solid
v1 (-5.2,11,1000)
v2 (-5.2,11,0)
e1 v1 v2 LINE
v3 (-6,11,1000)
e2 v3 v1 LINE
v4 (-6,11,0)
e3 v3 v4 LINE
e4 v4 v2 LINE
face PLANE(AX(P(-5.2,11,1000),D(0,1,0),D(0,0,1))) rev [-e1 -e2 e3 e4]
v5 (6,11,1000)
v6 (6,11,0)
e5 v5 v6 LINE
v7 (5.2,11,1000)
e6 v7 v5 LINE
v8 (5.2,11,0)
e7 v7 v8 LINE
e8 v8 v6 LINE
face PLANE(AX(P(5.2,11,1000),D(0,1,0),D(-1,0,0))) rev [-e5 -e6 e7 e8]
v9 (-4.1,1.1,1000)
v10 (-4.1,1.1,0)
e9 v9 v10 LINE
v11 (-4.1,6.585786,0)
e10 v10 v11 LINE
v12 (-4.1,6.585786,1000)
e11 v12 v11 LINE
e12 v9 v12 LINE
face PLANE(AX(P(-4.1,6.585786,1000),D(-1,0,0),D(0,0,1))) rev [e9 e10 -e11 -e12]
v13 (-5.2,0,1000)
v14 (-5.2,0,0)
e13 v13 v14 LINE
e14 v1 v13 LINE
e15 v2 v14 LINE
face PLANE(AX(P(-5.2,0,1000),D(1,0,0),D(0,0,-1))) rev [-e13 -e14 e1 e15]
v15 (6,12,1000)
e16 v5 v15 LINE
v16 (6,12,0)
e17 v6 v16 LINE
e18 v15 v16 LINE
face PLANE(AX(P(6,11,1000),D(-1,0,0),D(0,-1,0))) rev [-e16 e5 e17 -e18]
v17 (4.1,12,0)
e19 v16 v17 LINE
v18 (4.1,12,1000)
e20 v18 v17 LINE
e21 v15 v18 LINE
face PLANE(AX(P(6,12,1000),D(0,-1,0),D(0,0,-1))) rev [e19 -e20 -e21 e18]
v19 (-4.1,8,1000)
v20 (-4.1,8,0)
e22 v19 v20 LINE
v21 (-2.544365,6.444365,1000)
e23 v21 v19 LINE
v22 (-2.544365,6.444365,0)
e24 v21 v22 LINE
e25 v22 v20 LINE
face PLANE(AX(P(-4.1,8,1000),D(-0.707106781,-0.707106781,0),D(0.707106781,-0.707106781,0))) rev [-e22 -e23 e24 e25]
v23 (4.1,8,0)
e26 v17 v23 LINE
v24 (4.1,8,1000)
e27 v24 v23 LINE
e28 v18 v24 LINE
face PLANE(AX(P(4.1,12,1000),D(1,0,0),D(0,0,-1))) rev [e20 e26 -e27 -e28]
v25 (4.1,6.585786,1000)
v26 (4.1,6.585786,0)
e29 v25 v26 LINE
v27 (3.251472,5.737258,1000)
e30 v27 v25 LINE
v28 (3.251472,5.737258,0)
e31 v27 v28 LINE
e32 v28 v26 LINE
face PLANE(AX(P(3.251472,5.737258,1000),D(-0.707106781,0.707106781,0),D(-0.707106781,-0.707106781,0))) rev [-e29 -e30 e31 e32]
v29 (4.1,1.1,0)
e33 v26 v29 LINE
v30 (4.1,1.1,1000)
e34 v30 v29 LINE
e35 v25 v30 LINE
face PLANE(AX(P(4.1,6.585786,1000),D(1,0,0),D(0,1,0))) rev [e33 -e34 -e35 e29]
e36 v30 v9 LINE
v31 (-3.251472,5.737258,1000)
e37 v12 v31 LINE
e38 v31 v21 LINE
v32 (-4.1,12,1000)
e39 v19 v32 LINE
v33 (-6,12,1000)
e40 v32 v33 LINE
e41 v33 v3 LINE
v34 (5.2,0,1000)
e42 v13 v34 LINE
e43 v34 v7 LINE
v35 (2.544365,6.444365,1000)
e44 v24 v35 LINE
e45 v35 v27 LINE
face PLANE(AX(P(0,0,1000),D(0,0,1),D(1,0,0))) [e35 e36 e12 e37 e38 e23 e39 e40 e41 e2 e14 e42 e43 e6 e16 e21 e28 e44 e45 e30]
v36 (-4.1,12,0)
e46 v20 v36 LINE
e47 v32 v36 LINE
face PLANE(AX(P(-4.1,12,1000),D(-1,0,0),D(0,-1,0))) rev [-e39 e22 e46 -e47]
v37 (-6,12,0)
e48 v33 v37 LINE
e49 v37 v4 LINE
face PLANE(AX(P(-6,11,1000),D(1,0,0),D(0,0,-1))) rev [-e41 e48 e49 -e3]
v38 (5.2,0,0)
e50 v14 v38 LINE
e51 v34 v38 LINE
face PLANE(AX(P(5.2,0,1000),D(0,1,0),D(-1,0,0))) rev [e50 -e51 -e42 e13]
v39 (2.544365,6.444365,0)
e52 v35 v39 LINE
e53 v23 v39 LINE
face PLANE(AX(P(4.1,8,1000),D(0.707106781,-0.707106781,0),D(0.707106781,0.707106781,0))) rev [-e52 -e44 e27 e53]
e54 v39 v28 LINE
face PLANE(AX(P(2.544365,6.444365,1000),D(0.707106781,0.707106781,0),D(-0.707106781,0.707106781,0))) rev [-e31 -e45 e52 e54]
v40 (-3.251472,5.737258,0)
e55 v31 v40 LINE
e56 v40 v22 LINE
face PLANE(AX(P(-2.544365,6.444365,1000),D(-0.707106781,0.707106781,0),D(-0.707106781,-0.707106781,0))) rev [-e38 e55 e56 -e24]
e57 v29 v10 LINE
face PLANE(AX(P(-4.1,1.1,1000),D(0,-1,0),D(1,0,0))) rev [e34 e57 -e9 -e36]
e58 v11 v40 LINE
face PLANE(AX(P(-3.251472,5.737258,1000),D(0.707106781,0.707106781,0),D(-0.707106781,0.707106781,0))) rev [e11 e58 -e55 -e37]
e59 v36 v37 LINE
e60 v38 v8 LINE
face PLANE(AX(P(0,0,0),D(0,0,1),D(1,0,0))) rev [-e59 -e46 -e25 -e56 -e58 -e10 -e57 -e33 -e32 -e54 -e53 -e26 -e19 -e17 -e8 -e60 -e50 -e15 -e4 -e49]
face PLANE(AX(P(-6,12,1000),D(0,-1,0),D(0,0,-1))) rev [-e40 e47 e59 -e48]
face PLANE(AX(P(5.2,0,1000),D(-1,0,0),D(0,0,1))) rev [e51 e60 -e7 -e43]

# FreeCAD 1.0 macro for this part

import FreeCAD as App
import Part
import Sketcher

V = App.Vector

doc = App.newDocument("Part")
body = doc.addObject("PartDesign::Body", "Body")

# Sketch on XY plane
sketch1 = body.newObject("Sketcher::SketchObject", "Sketch")
sketch1.AttachmentSupport = (doc.getObject("XY_Plane"), [""])
sketch1.MapMode = "FlatFace"
sketch1.addGeometry(Part.LineSegment(V(-5.2, 0, 0), V(5.2, 0, 0)), False)
sketch1.addGeometry(Part.LineSegment(V(5.2, 0, 0), V(5.2, 11, 0)), False)
sketch1.addGeometry(Part.LineSegment(V(5.2, 11, 0), V(6, 11, 0)), False)
sketch1.addGeometry(Part.LineSegment(V(6, 11, 0), V(6, 12, 0)), False)
sketch1.addGeometry(Part.LineSegment(V(6, 12, 0), V(4.1, 12, 0)), False)
sketch1.addGeometry(Part.LineSegment(V(4.1, 12, 0), V(4.1, 8, 0)), False)
sketch1.addGeometry(Part.LineSegment(V(4.1, 8, 0), V(2.5, 6.4, 0)), False)
sketch1.addGeometry(Part.LineSegment(V(2.5, 6.4, 0), V(3.3, 5.7, 0)), False)
sketch1.addGeometry(Part.LineSegment(V(3.3, 5.7, 0), V(4.1, 6.6, 0)), False)
sketch1.addGeometry(Part.LineSegment(V(4.1, 6.6, 0), V(4.1, 1.1, 0)), False)
sketch1.addGeometry(Part.LineSegment(V(4.1, 1.1, 0), V(-4.1, 1.1, 0)), False)
sketch1.addGeometry(Part.LineSegment(V(-4.1, 1.1, 0), V(-4.1, 6.6, 0)), False)
sketch1.addGeometry(Part.LineSegment(V(-4.1, 6.6, 0), V(-3.3, 5.7, 0)), False)
sketch1.addGeometry(Part.LineSegment(V(-3.3, 5.7, 0), V(-2.5, 6.4, 0)), False)
sketch1.addGeometry(Part.LineSegment(V(-2.5, 6.4, 0), V(-4.1, 8, 0)), False)
sketch1.addGeometry(Part.LineSegment(V(-4.1, 8, 0), V(-4.1, 12, 0)), False)
sketch1.addGeometry(Part.LineSegment(V(-4.1, 12, 0), V(-6, 12, 0)), False)
sketch1.addGeometry(Part.LineSegment(V(-6, 12, 0), V(-6, 11, 0)), False)
sketch1.addGeometry(Part.LineSegment(V(-6, 11, 0), V(-5.2, 11, 0)), False)
sketch1.addGeometry(Part.LineSegment(V(-5.2, 11, 0), V(-5.2, 0, 0)), False)
sketch1.addConstraint(Sketcher.Constraint("Coincident", 0, 2, 1, 1))
sketch1.addConstraint(Sketcher.Constraint("Coincident", 1, 2, 2, 1))
sketch1.addConstraint(Sketcher.Constraint("Coincident", 2, 2, 3, 1))
sketch1.addConstraint(Sketcher.Constraint("Coincident", 3, 2, 4, 1))
sketch1.addConstraint(Sketcher.Constraint("Coincident", 4, 2, 5, 1))
sketch1.addConstraint(Sketcher.Constraint("Coincident", 5, 2, 6, 1))
sketch1.addConstraint(Sketcher.Constraint("Coincident", 6, 2, 7, 1))
sketch1.addConstraint(Sketcher.Constraint("Coincident", 7, 2, 8, 1))
sketch1.addConstraint(Sketcher.Constraint("Coincident", 8, 2, 9, 1))
sketch1.addConstraint(Sketcher.Constraint("Coincident", 9, 2, 10, 1))
sketch1.addConstraint(Sketcher.Constraint("Coincident", 10, 2, 11, 1))
sketch1.addConstraint(Sketcher.Constraint("Coincident", 11, 2, 12, 1))
sketch1.addConstraint(Sketcher.Constraint("Coincident", 12, 2, 13, 1))
sketch1.addConstraint(Sketcher.Constraint("Coincident", 13, 2, 14, 1))
sketch1.addConstraint(Sketcher.Constraint("Coincident", 14, 2, 15, 1))
sketch1.addConstraint(Sketcher.Constraint("Coincident", 15, 2, 16, 1))
sketch1.addConstraint(Sketcher.Constraint("Coincident", 16, 2, 17, 1))
sketch1.addConstraint(Sketcher.Constraint("Coincident", 17, 2, 18, 1))
sketch1.addConstraint(Sketcher.Constraint("Coincident", 18, 2, 19, 1))
sketch1.addConstraint(Sketcher.Constraint("Coincident", 19, 2, 0, 1))
sketch1.addConstraint(Sketcher.Constraint("Horizontal", 0))
sketch1.addConstraint(Sketcher.Constraint("Vertical", 1))
sketch1.addConstraint(Sketcher.Constraint("Horizontal", 2))
sketch1.addConstraint(Sketcher.Constraint("Vertical", 3))
sketch1.addConstraint(Sketcher.Constraint("Horizontal", 4))
sketch1.addConstraint(Sketcher.Constraint("Vertical", 5))
sketch1.addConstraint(Sketcher.Constraint("Vertical", 9))
sketch1.addConstraint(Sketcher.Constraint("Horizontal", 10))
sketch1.addConstraint(Sketcher.Constraint("Vertical", 11))
sketch1.addConstraint(Sketcher.Constraint("Vertical", 15))
sketch1.addConstraint(Sketcher.Constraint("Horizontal", 16))
sketch1.addConstraint(Sketcher.Constraint("Vertical", 17))
sketch1.addConstraint(Sketcher.Constraint("Horizontal", 18))
sketch1.addConstraint(Sketcher.Constraint("Vertical", 19))
sketch1.addConstraint(Sketcher.Constraint("Symmetric", 0, 2, 19, 2, -1, 1))
sketch1.addConstraint(Sketcher.Constraint("Symmetric", 8, 2, 11, 2, -2))
sketch1.addConstraint(Sketcher.Constraint("Symmetric", 7, 2, 12, 2, -2))
sketch1.addConstraint(Sketcher.Constraint("Symmetric", 6, 2, 13, 2, -2))
sketch1.addConstraint(Sketcher.Constraint("Symmetric", 5, 2, 14, 2, -2))
sketch1.addConstraint(Sketcher.Constraint("Symmetric", 3, 2, 16, 2, -2))
sketch1.addConstraint(Sketcher.Constraint("Perpendicular", 6, 7))
sketch1.addConstraint(Sketcher.Constraint("Perpendicular", 7, 8))
sketch1.addConstraint(Sketcher.Constraint("Perpendicular", 8, 12))
sketch1.addConstraint(Sketcher.Constraint("Horizontal", 2, 2, 17, 2))
sketch1.addConstraint(Sketcher.Constraint("Vertical", 5, 2, 8, 2))
sketch1.addConstraint(Sketcher.Constraint("DistanceY", 1, 1, 1, 2, 11.0))
sketch1.addConstraint(Sketcher.Constraint("DistanceY", 3, 1, 3, 2, 1.0))
sketch1.addConstraint(Sketcher.Constraint("DistanceY", 5, 2, 5, 1, 4.0))
sketch1.addConstraint(Sketcher.Constraint("Distance", 7, 1.0))
sketch1.addConstraint(Sketcher.Constraint("DistanceX", 0, 1, 0, 2, 10.4))
sketch1.addConstraint(Sketcher.Constraint("DistanceX", 2, 1, 2, 2, 0.8))
sketch1.addConstraint(Sketcher.Constraint("DistanceX", 4, 2, 4, 1, 1.9))
sketch1.addConstraint(Sketcher.Constraint("Distance", 6, 2.2))
sketch1.addConstraint(Sketcher.Constraint("DistanceY", -1, 1, 9, 2, 1.1))
pad1 = body.newObject("PartDesign::Pad", "Pad")
pad1.Profile = sketch1
pad1.Length = 1000

doc.recompute()
